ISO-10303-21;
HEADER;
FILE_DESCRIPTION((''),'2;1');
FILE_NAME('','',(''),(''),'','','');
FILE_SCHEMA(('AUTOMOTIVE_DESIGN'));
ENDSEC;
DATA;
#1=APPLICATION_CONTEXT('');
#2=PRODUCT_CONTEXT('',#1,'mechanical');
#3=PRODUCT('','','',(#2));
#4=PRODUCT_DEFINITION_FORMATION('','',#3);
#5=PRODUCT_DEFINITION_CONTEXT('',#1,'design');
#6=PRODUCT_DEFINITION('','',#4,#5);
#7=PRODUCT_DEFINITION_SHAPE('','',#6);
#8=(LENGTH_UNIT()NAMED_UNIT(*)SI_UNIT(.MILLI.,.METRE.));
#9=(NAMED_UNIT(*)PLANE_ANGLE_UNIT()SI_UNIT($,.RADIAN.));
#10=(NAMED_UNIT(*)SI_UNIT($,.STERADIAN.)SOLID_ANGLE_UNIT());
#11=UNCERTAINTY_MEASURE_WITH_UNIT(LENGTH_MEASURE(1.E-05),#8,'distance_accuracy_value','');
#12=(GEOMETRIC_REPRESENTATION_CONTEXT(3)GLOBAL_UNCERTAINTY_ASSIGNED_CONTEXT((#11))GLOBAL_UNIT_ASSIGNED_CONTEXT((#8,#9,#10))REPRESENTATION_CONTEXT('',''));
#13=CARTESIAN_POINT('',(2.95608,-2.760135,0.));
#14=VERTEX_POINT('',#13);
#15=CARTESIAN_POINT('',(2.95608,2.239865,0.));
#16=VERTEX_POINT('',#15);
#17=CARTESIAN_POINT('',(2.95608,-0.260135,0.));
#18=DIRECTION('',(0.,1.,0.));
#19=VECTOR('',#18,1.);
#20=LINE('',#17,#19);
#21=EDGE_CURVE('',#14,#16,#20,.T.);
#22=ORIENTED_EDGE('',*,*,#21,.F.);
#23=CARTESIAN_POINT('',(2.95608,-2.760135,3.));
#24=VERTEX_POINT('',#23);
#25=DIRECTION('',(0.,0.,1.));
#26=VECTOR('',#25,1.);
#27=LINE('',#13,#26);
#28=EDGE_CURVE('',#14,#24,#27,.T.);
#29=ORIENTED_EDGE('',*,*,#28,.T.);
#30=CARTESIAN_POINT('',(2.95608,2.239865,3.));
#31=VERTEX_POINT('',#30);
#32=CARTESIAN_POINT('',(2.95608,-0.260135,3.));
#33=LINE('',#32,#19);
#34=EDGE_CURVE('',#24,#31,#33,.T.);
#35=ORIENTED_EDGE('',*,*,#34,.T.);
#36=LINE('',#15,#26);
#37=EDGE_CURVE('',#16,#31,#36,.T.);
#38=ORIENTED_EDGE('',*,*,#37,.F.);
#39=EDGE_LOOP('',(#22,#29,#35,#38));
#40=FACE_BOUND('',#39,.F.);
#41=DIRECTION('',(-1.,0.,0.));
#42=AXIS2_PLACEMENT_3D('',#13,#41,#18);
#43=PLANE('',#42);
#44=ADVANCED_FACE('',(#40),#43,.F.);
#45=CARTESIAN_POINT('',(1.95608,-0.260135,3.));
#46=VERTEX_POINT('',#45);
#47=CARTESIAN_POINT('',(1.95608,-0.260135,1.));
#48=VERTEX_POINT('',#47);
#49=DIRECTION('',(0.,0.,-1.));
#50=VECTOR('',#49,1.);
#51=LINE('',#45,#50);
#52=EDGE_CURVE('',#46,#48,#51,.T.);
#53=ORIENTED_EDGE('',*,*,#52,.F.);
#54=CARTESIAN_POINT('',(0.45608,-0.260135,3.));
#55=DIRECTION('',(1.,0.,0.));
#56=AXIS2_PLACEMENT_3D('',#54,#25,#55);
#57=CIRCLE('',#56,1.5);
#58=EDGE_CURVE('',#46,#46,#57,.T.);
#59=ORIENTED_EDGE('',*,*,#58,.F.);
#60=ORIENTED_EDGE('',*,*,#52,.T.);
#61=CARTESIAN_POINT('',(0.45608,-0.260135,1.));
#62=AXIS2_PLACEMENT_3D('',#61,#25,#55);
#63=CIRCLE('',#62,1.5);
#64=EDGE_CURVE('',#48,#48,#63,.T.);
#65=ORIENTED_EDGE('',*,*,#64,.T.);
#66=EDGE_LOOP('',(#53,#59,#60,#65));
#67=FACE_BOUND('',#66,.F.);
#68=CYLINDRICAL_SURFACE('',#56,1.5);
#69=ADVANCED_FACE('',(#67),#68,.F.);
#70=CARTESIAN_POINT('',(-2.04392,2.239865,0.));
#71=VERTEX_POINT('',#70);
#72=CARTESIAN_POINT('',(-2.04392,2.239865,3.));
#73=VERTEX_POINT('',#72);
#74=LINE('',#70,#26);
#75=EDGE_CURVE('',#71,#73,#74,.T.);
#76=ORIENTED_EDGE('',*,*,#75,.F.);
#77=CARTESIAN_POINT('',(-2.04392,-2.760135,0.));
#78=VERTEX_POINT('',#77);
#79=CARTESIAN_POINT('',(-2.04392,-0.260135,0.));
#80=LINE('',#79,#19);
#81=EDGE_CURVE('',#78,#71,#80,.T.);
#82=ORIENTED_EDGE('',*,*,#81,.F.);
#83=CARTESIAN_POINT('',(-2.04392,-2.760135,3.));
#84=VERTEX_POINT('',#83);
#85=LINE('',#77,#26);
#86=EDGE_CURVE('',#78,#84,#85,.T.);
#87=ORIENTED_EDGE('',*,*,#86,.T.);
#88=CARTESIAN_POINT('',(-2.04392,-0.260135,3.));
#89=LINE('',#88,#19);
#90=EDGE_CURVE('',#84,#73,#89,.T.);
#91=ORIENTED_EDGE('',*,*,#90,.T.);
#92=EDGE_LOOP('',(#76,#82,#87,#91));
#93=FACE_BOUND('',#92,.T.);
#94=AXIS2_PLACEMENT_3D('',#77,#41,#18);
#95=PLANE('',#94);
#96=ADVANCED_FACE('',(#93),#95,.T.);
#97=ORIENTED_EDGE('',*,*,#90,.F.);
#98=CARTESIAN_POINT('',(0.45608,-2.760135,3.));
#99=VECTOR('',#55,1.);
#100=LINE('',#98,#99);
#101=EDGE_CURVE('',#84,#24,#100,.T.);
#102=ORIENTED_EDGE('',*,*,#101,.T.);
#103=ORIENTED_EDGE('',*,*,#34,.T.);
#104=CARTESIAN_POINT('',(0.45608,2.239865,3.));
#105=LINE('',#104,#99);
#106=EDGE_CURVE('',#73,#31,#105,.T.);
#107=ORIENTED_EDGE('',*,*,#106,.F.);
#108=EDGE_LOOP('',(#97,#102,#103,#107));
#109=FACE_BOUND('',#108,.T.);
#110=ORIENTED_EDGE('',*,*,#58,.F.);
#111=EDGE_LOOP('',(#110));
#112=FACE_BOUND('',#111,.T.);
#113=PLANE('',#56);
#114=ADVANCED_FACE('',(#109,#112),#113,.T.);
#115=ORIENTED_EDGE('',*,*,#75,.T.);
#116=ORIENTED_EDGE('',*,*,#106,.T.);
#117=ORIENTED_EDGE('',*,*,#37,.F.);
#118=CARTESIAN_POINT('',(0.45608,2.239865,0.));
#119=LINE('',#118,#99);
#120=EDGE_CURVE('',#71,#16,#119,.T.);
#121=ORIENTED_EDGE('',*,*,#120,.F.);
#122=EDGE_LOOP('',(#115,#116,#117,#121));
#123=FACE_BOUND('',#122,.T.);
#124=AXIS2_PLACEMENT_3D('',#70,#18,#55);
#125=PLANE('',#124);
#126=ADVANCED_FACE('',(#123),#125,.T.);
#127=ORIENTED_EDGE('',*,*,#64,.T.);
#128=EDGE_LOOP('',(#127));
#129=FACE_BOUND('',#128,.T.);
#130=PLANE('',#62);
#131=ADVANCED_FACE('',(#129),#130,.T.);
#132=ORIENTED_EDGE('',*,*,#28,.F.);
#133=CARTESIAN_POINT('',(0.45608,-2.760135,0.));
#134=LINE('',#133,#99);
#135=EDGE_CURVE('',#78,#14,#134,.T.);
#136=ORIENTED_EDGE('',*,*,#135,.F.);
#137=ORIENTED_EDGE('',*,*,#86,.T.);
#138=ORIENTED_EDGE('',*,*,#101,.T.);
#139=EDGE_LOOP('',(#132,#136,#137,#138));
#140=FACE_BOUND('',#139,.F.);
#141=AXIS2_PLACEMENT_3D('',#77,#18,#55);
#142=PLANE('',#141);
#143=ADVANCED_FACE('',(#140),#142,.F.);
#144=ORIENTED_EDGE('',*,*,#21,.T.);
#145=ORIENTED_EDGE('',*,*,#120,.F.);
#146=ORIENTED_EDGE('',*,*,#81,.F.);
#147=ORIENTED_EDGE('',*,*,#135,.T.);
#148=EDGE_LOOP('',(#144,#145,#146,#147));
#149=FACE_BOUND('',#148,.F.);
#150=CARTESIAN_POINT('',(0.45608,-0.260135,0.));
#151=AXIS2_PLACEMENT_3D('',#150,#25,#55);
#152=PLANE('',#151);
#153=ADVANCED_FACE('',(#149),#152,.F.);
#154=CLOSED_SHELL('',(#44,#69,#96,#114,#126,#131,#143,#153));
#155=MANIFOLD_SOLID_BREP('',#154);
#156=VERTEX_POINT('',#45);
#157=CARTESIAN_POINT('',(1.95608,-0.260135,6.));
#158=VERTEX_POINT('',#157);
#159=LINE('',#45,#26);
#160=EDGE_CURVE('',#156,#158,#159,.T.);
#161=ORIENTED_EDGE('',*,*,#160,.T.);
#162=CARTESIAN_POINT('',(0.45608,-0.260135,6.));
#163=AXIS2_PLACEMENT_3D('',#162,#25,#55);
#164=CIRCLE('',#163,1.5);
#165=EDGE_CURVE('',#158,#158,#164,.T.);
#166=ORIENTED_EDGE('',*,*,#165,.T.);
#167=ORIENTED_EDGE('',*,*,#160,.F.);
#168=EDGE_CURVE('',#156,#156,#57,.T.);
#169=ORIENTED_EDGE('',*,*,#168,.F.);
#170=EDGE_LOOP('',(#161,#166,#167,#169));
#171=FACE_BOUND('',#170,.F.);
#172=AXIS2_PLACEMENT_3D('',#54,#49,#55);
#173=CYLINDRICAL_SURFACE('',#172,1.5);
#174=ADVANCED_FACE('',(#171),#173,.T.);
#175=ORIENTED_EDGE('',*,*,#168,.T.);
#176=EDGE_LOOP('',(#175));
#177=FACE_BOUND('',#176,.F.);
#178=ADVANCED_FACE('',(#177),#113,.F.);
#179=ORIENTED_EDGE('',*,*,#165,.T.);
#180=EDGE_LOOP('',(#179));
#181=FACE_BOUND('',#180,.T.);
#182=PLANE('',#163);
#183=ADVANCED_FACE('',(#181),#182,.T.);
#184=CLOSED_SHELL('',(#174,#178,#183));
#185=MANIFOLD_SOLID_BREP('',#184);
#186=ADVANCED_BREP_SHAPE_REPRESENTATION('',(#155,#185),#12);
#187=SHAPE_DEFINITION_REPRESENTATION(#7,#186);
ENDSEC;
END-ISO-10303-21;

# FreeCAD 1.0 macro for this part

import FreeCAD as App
import Part
import Sketcher

doc = App.newDocument("Part")
body = doc.addObject("PartDesign::Body", "Body")

# Sketch on XY plane
sketch1 = body.newObject("Sketcher::SketchObject", "Sketch")
sketch1.AttachmentSupport = (doc.getObject("XY_Plane"), [""])
sketch1.MapMode = "FlatFace"
sketch1.addGeometry([
    Part.LineSegment(App.Vector(-2, 2, 0), App.Vector(-2, -3, 0)),
    Part.LineSegment(App.Vector(-2, -3, 0), App.Vector(3, -3, 0)),
    Part.LineSegment(App.Vector(3, -3, 0), App.Vector(3, 2, 0)),
    Part.LineSegment(App.Vector(3, 2, 0), App.Vector(-2, 2, 0)),
], False)
sketch1.addConstraint([
    Sketcher.Constraint("Coincident", 0, 2, 1, 1),
    Sketcher.Constraint("Coincident", 1, 2, 2, 1),
    Sketcher.Constraint("Coincident", 2, 2, 3, 1),
    Sketcher.Constraint("Coincident", 3, 2, 0, 1),
    Sketcher.Constraint("Vertical", 0),
    Sketcher.Constraint("Horizontal", 1),
    Sketcher.Constraint("Vertical", 2),
    Sketcher.Constraint("Horizontal", 3),
    Sketcher.Constraint("Equal", 3, 0),
    Sketcher.Constraint("DistanceX", 1, 1, 1, 2, 5.0),
    Sketcher.Constraint("DistanceX", 0, 2, -1, 1, 2.04392),
    Sketcher.Constraint("DistanceY", 0, 2, -1, 1, 2.760135),
])
pad1 = body.newObject("PartDesign::Pad", "Pad")
pad1.Profile = sketch1
pad1.Length = 3

# Sketch on XY plane
sketch2 = body.newObject("Sketcher::SketchObject", "Sketch001")
sketch2.AttachmentSupport = (doc.getObject("XY_Plane"), [""])
sketch2.MapMode = "FlatFace"
sketch2.AttachmentOffset = App.Placement(App.Vector(0, 0, 3), App.Rotation())
sketch2.addGeometry(Part.Circle(App.Vector(0.5, -0.3, 0), App.Vector(0, 0, 1), 1.5), False)
sketch2.addConstraint([
    Sketcher.Constraint("Diameter", 0, 3.0),
    Sketcher.Constraint("DistanceX", -1, 1, 0, 3, 0.45608),
    Sketcher.Constraint("DistanceY", 0, 3, -1, 1, 0.260135),
])
pocket1 = body.newObject("PartDesign::Pocket", "Pocket")
pocket1.Profile = sketch2
pocket1.Length = 2
body2 = doc.addObject("PartDesign::Body", "Body001")

# Sketch on XY plane
sketch3 = body2.newObject("Sketcher::SketchObject", "Sketch002")
sketch3.AttachmentSupport = (doc.getObject("XY_Plane001"), [""])
sketch3.MapMode = "FlatFace"
sketch3.AttachmentOffset = App.Placement(App.Vector(0, 0, 3), App.Rotation())
sketch3.addGeometry(Part.Circle(App.Vector(0.5, -0.3, 0), App.Vector(0, 0, 1), 1.5), False)
sketch3.addConstraint([
    Sketcher.Constraint("Diameter", 0, 3.0),
    Sketcher.Constraint("DistanceX", -1, 1, 0, 3, 0.45608),
    Sketcher.Constraint("DistanceY", 0, 3, -1, 1, 0.260135),
])
pad2 = body2.newObject("PartDesign::Pad", "Pad001")
pad2.Profile = sketch3
pad2.Length = 3

doc.recompute()
